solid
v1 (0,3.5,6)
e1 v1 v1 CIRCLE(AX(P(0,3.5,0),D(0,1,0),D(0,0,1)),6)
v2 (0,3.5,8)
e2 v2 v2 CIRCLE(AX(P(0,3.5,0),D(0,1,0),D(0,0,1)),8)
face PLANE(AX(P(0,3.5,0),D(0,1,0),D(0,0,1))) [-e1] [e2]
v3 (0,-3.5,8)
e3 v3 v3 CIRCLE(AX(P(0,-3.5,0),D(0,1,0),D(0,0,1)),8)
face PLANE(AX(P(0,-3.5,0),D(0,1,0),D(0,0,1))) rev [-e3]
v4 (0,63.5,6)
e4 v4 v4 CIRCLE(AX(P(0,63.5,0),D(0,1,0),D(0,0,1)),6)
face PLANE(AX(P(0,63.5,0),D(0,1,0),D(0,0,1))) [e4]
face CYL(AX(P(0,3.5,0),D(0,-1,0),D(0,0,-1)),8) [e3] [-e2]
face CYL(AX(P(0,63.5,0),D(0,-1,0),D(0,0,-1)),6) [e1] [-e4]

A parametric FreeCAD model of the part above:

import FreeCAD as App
import Part
import Sketcher

V = App.Vector
Q = App.Units.Quantity

doc = App.newDocument("Part")
body = doc.addObject("PartDesign::Body", "Body")

# Sketch on XZ plane
sketch1 = body.newObject("Sketcher::SketchObject", "Sketch")
sketch1.AttachmentSupport = (doc.getObject("XZ_Plane"), [""])
sketch1.MapMode = "FlatFace"
sketch1.addGeometry(Part.Circle(V(0, 0, 0), V(0, 0, 1), 8), False)
sketch1.addConstraint([
    Sketcher.Constraint("Coincident", 0, 3, -1, 1),
    Sketcher.Constraint("Diameter", 0, Q("16 mm")),
])
pad1 = body.newObject("PartDesign::Pad", "Pad")
pad1.Profile = sketch1
pad1.Length = 7
pad1.Midplane = True

# Sketch on XZ plane
sketch2 = body.newObject("Sketcher::SketchObject", "Sketch001")
sketch2.AttachmentSupport = (doc.getObject("XZ_Plane"), [""])
sketch2.MapMode = "FlatFace"
sketch2.AttachmentOffset = App.Placement(V(0, 0, -3.5), App.Rotation())
sketch2.addGeometry(Part.Circle(V(0, 0, 0), V(0, 0, 1), 6), False)
sketch2.addConstraint([
    Sketcher.Constraint("Coincident", 0, 3, -1, 1),
    Sketcher.Constraint("Diameter", 0, Q("12 mm")),
])
pad2 = body.newObject("PartDesign::Pad", "Pad001")
pad2.Profile = sketch2
pad2.Length = 60
pad2.Reversed = True

doc.recompute()
